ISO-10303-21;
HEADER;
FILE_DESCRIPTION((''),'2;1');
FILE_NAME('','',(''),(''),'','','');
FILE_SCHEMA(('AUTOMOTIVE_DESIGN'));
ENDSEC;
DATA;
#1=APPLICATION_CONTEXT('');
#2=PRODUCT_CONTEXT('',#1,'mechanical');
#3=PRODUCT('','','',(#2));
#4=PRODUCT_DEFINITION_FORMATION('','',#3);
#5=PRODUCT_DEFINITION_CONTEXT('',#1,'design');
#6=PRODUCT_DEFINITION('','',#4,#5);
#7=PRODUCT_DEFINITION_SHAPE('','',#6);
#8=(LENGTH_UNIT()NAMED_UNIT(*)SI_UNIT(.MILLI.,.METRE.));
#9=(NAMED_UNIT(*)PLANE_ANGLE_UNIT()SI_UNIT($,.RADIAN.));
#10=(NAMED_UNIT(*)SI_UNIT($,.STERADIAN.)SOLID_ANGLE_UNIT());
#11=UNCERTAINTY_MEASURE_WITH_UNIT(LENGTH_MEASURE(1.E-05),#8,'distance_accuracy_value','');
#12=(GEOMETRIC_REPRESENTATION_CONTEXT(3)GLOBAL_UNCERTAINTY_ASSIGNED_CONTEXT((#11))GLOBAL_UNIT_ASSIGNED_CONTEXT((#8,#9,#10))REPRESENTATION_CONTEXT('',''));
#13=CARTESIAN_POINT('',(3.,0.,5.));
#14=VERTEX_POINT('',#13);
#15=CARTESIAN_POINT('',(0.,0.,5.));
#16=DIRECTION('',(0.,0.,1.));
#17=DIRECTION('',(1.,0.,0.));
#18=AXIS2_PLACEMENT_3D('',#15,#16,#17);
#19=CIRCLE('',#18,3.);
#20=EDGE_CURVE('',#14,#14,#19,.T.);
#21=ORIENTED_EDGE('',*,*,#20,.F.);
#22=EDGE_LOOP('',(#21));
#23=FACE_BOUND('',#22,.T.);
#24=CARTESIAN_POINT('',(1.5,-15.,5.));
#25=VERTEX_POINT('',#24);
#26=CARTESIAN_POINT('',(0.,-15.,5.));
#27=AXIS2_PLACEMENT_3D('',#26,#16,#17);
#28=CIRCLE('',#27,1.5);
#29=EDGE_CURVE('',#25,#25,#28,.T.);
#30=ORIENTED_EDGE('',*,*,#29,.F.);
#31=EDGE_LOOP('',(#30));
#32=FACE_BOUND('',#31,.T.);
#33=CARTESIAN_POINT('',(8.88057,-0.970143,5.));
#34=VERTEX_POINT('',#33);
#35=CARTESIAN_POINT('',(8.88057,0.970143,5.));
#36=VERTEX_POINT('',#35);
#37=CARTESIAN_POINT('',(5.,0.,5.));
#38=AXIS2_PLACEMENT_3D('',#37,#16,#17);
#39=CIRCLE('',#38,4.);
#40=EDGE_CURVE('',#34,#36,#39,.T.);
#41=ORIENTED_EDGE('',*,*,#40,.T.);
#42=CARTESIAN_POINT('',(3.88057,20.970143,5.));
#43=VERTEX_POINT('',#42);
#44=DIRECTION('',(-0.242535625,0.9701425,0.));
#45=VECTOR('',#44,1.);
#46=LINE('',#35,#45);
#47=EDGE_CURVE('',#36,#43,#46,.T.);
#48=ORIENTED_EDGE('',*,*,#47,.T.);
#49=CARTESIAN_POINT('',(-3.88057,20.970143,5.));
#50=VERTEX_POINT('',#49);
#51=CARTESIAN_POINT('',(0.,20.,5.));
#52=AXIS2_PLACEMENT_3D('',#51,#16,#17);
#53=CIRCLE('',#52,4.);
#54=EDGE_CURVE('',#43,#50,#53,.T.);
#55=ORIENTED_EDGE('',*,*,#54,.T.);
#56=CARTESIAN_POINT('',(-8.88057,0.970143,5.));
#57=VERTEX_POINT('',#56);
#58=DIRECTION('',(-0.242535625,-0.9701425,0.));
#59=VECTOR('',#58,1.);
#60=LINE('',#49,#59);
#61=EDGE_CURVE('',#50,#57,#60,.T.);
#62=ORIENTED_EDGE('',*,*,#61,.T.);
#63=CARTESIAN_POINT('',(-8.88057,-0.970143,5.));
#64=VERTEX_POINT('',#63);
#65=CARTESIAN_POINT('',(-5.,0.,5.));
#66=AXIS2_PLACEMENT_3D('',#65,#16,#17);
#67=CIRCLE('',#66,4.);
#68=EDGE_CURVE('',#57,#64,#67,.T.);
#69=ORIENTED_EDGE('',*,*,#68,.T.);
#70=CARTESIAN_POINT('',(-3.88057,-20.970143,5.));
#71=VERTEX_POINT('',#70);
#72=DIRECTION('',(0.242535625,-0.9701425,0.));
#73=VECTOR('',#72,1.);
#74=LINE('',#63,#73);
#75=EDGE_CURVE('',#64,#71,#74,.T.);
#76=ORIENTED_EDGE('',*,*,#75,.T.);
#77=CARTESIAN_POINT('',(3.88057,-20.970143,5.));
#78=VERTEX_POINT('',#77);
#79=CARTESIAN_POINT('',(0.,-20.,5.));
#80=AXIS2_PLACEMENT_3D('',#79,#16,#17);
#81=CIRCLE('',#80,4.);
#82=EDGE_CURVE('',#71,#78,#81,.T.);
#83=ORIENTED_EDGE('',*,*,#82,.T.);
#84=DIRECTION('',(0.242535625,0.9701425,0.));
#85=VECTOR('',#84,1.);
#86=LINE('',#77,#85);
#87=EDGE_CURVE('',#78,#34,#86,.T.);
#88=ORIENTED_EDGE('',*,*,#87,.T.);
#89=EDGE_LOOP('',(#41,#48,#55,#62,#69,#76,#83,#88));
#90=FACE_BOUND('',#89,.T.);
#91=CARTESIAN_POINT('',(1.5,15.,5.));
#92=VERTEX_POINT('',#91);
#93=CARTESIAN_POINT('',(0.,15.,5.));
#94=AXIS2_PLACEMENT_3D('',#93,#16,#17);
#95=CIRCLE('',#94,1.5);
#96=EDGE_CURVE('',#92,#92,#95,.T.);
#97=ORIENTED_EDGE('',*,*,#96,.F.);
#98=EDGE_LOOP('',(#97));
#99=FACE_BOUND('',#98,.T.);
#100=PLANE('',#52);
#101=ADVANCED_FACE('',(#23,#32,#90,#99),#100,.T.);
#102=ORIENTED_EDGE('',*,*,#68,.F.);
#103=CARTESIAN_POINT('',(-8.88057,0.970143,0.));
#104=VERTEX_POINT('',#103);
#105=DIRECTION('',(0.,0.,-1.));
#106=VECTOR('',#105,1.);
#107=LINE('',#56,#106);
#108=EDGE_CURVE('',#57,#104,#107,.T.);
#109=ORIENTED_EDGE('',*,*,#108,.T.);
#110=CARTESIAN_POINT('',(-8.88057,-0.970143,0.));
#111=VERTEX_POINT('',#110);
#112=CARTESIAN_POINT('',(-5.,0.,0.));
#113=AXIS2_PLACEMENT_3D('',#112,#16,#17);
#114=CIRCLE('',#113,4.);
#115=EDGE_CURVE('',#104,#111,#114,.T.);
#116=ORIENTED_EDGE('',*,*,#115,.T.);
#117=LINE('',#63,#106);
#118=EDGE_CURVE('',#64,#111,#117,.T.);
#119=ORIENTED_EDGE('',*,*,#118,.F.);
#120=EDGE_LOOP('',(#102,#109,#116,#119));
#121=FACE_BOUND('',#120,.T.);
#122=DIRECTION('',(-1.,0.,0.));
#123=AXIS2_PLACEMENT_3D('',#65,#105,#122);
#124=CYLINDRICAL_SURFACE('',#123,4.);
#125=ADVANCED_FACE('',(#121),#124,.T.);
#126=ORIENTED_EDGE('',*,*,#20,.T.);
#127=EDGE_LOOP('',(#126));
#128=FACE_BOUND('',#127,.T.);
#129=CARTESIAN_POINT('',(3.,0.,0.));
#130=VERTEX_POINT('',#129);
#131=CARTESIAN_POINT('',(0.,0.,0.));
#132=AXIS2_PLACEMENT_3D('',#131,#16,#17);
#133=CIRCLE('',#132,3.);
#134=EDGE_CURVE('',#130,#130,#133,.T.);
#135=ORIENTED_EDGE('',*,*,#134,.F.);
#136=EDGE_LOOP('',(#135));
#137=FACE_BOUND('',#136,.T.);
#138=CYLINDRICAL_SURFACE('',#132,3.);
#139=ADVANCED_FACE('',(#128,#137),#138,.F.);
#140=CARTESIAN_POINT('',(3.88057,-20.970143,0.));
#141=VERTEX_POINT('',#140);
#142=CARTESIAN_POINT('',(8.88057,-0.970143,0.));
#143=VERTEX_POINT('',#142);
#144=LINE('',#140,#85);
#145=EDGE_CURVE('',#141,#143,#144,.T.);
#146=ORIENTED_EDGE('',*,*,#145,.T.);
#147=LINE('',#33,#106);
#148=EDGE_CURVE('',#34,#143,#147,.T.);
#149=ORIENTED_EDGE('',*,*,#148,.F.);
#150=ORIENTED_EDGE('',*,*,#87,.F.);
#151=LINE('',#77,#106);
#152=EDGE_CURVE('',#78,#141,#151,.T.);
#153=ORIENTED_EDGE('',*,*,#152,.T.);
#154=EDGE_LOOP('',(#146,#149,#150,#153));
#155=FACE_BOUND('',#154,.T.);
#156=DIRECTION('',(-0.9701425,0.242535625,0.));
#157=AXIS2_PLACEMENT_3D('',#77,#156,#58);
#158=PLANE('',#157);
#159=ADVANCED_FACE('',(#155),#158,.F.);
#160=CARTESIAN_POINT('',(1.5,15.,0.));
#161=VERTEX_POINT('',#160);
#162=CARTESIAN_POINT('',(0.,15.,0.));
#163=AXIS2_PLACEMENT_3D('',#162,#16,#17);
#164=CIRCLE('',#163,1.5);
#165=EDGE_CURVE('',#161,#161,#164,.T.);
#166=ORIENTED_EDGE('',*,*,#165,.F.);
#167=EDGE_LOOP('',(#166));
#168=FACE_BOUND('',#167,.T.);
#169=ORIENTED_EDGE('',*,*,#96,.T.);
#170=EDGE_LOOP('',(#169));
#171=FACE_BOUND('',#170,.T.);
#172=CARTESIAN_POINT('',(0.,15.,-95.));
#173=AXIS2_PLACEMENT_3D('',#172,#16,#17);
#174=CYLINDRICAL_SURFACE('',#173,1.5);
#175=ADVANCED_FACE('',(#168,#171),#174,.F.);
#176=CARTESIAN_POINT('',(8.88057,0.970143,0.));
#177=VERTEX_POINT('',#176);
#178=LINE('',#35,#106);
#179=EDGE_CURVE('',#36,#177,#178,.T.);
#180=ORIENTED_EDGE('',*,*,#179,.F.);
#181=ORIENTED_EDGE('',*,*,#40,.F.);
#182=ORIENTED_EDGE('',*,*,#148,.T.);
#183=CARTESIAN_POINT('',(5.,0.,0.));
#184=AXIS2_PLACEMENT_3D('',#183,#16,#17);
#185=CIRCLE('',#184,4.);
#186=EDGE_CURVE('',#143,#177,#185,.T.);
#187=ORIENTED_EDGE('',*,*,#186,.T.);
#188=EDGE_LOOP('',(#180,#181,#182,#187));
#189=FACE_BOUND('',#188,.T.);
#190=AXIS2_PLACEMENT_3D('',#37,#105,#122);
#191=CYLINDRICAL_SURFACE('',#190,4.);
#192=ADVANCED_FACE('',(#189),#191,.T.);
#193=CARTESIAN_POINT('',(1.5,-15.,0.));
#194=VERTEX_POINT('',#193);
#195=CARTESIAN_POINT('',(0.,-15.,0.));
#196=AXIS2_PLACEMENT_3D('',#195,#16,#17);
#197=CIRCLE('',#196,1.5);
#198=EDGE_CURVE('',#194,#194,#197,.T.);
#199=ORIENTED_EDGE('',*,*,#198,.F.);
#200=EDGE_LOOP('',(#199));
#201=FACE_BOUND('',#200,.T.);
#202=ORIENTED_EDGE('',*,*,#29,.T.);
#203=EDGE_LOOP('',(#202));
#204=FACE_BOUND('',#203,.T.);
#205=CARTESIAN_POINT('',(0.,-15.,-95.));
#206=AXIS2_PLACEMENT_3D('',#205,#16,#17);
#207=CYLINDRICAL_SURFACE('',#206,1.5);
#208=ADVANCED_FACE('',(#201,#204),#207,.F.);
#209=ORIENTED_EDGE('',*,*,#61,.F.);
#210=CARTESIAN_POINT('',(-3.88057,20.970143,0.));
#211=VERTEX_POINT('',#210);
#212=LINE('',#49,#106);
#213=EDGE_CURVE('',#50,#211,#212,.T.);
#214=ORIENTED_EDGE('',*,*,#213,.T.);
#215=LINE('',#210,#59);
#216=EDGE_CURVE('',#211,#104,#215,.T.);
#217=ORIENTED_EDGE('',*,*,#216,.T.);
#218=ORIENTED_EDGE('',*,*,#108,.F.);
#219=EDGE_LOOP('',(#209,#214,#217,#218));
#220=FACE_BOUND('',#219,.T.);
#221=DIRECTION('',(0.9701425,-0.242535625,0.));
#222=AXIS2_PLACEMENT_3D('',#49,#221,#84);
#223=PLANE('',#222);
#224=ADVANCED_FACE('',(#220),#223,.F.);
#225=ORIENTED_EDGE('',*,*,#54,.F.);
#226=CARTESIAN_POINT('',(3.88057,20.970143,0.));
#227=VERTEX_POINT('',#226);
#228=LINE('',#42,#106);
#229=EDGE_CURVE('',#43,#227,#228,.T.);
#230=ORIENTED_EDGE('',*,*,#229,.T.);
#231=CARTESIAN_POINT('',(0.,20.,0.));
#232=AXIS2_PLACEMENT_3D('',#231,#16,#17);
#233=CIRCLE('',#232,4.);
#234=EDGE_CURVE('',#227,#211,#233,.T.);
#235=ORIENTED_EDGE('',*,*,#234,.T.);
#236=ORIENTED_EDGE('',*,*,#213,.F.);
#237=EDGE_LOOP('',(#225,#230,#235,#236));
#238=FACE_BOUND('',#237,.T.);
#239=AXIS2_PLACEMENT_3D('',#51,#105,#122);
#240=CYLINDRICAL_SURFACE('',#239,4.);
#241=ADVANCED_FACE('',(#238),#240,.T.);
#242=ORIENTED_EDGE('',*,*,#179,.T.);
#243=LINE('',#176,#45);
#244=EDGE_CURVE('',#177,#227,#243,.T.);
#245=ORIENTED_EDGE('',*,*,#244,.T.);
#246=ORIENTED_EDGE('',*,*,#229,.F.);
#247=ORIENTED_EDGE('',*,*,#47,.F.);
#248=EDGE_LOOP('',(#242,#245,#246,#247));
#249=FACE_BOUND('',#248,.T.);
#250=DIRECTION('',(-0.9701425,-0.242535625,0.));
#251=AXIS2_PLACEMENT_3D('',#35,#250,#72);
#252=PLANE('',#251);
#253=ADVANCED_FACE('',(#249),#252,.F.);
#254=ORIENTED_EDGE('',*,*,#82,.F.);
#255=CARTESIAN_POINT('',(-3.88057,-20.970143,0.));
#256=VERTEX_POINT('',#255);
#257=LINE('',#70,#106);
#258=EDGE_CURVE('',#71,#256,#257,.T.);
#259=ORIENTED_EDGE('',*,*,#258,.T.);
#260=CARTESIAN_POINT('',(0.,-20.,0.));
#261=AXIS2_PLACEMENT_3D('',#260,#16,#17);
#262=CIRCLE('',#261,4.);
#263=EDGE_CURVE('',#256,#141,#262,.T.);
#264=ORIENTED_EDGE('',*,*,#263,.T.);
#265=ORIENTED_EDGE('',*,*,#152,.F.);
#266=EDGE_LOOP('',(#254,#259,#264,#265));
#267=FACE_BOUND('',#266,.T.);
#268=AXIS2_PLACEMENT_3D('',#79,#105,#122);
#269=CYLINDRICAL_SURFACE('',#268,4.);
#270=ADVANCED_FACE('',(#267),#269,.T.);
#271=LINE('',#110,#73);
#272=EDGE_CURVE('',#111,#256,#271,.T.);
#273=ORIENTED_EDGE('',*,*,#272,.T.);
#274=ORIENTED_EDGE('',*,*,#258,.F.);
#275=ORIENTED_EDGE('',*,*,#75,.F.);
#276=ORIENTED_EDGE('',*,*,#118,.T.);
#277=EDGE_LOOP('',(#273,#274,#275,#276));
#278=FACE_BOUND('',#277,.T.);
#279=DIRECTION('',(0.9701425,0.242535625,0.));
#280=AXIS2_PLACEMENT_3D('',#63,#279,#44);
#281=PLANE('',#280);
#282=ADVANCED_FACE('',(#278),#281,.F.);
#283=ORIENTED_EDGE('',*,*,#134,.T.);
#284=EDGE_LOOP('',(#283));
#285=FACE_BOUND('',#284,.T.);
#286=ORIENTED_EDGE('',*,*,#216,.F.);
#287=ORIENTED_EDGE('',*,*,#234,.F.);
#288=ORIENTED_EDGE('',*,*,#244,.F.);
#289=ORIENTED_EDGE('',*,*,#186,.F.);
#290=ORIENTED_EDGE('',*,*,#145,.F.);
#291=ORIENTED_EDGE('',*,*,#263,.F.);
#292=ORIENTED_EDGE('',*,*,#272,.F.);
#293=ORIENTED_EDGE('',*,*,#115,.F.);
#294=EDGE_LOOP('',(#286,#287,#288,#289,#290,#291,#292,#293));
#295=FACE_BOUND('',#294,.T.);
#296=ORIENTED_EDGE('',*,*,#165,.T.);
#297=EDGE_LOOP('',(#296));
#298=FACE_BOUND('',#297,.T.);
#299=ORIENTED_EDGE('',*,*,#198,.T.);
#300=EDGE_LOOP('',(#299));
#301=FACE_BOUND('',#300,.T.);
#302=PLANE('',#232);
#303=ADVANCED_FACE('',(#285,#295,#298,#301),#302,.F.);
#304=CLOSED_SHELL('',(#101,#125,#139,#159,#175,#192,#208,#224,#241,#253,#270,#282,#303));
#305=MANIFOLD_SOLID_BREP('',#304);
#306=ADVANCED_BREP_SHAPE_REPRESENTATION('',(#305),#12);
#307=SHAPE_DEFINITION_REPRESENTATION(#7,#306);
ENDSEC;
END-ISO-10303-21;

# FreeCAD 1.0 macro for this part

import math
import FreeCAD as App
import Part
import Sketcher

V = App.Vector

doc = App.newDocument("Part")
body = doc.addObject("PartDesign::Body", "Body")

# Sketch on XY plane
sketch1 = body.newObject("Sketcher::SketchObject", "Sketch")
sketch1.AttachmentSupport = (doc.getObject("XY_Plane"), [""])
sketch1.MapMode = "FlatFace"
sketch1.addGeometry([
    Part.LineSegment(V(-3.88057, 20.970143, 0), V(-8.88057, 0.970143, 0)),  # 0
    Part.ArcOfCircle(Part.Circle(V(-5, 0, 0), V(0, 0, 1), 4), math.radians(165.963757), math.radians(194.036243)),  # 1
    Part.LineSegment(V(-8.88057, -0.970143, 0), V(-3.88057, -20.970143, 0)),  # 2
    Part.ArcOfCircle(Part.Circle(V(0, -20, 0), V(0, 0, 1), 4), math.radians(-165.963757), math.radians(-14.036243)),  # 3
    Part.LineSegment(V(3.88057, -20.970143, 0), V(8.88057, -0.970143, 0)),  # 4
    Part.ArcOfCircle(Part.Circle(V(5, 0, 0), V(0, 0, 1), 4), math.radians(-14.036243), math.radians(14.036243)),  # 5
    Part.LineSegment(V(8.88057, 0.970143, 0), V(3.88057, 20.970143, 0)),  # 6
    Part.ArcOfCircle(Part.Circle(V(0, 20, 0), V(0, 0, 1), 4), math.radians(14.036243), math.radians(165.963757)),  # 7
], False)
sketch1.addConstraint([
    Sketcher.Constraint("Tangent", 0, 2, 1, 1),
    Sketcher.Constraint("Tangent", 1, 2, 2, 1),
    Sketcher.Constraint("Tangent", 2, 2, 3, 1),
    Sketcher.Constraint("Tangent", 3, 2, 4, 1),
    Sketcher.Constraint("Tangent", 4, 2, 5, 1),
    Sketcher.Constraint("Tangent", 5, 2, 6, 1),
    Sketcher.Constraint("Tangent", 6, 2, 7, 1),
    Sketcher.Constraint("Tangent", 7, 2, 0, 1),
    Sketcher.Constraint("Equal", 1, 3),
    Sketcher.Constraint("Equal", 3, 5),
    Sketcher.Constraint("Equal", 5, 7),
    Sketcher.Constraint("Symmetric", 1, 3, 5, 3, -1, 1),
    Sketcher.Constraint("Symmetric", 3, 3, 7, 3, -1, 1),
    Sketcher.Constraint("Symmetric", 2, 2, 3, 2, -2),
    Sketcher.Constraint("Radius", 1, 4.0),
    Sketcher.Constraint("DistanceX", 1, 3, -1, 1, 5.0),
    Sketcher.Constraint("DistanceY", 3, 3, -1, 1, 20.0),
])
pad1 = body.newObject("PartDesign::Pad", "Pad")
pad1.Profile = sketch1
pad1.Length = 5

# Sketch on XY plane
sketch2 = body.newObject("Sketcher::SketchObject", "Sketch001")
sketch2.AttachmentSupport = (doc.getObject("XY_Plane"), [""])
sketch2.MapMode = "FlatFace"
sketch2.AttachmentOffset = App.Placement(V(0, 0, 5), App.Rotation())
sketch2.addGeometry(Part.Circle(V(0, 0, 0), V(0, 0, 1), 3), False)
sketch2.addConstraint([
    Sketcher.Constraint("Coincident", 0, 3, -1, 1),
    Sketcher.Constraint("Diameter", 0, 6.0),
])
pocket1 = body.newObject("PartDesign::Pocket", "Pocket")
pocket1.Profile = sketch2
pocket1.Type = "ThroughAll"

# Sketch on XY plane
sketch3 = body.newObject("Sketcher::SketchObject", "Sketch002")
sketch3.AttachmentSupport = (doc.getObject("XY_Plane"), [""])
sketch3.MapMode = "FlatFace"
sketch3.AttachmentOffset = App.Placement(V(0, 0, 5), App.Rotation())
sketch3.addGeometry([
    Part.Circle(V(0, 15, 0), V(0, 0, 1), 1.5),
    Part.Circle(V(0, -15, 0), V(0, 0, 1), 1.5),
], False)
sketch3.addConstraint([
    Sketcher.Constraint("Equal", 0, 1),
    Sketcher.Constraint("Symmetric", 0, 3, 1, 3, -1, 1),
    Sketcher.Constraint("PointOnObject", 0, 3, -2),
    Sketcher.Constraint("Diameter", 0, 3.0),
    Sketcher.Constraint("DistanceY", -1, 1, 0, 3, 15.0),
])
pocket2 = body.newObject("PartDesign::Pocket", "Pocket001")
pocket2.Profile = sketch3
pocket2.Length = 100

doc.recompute()
